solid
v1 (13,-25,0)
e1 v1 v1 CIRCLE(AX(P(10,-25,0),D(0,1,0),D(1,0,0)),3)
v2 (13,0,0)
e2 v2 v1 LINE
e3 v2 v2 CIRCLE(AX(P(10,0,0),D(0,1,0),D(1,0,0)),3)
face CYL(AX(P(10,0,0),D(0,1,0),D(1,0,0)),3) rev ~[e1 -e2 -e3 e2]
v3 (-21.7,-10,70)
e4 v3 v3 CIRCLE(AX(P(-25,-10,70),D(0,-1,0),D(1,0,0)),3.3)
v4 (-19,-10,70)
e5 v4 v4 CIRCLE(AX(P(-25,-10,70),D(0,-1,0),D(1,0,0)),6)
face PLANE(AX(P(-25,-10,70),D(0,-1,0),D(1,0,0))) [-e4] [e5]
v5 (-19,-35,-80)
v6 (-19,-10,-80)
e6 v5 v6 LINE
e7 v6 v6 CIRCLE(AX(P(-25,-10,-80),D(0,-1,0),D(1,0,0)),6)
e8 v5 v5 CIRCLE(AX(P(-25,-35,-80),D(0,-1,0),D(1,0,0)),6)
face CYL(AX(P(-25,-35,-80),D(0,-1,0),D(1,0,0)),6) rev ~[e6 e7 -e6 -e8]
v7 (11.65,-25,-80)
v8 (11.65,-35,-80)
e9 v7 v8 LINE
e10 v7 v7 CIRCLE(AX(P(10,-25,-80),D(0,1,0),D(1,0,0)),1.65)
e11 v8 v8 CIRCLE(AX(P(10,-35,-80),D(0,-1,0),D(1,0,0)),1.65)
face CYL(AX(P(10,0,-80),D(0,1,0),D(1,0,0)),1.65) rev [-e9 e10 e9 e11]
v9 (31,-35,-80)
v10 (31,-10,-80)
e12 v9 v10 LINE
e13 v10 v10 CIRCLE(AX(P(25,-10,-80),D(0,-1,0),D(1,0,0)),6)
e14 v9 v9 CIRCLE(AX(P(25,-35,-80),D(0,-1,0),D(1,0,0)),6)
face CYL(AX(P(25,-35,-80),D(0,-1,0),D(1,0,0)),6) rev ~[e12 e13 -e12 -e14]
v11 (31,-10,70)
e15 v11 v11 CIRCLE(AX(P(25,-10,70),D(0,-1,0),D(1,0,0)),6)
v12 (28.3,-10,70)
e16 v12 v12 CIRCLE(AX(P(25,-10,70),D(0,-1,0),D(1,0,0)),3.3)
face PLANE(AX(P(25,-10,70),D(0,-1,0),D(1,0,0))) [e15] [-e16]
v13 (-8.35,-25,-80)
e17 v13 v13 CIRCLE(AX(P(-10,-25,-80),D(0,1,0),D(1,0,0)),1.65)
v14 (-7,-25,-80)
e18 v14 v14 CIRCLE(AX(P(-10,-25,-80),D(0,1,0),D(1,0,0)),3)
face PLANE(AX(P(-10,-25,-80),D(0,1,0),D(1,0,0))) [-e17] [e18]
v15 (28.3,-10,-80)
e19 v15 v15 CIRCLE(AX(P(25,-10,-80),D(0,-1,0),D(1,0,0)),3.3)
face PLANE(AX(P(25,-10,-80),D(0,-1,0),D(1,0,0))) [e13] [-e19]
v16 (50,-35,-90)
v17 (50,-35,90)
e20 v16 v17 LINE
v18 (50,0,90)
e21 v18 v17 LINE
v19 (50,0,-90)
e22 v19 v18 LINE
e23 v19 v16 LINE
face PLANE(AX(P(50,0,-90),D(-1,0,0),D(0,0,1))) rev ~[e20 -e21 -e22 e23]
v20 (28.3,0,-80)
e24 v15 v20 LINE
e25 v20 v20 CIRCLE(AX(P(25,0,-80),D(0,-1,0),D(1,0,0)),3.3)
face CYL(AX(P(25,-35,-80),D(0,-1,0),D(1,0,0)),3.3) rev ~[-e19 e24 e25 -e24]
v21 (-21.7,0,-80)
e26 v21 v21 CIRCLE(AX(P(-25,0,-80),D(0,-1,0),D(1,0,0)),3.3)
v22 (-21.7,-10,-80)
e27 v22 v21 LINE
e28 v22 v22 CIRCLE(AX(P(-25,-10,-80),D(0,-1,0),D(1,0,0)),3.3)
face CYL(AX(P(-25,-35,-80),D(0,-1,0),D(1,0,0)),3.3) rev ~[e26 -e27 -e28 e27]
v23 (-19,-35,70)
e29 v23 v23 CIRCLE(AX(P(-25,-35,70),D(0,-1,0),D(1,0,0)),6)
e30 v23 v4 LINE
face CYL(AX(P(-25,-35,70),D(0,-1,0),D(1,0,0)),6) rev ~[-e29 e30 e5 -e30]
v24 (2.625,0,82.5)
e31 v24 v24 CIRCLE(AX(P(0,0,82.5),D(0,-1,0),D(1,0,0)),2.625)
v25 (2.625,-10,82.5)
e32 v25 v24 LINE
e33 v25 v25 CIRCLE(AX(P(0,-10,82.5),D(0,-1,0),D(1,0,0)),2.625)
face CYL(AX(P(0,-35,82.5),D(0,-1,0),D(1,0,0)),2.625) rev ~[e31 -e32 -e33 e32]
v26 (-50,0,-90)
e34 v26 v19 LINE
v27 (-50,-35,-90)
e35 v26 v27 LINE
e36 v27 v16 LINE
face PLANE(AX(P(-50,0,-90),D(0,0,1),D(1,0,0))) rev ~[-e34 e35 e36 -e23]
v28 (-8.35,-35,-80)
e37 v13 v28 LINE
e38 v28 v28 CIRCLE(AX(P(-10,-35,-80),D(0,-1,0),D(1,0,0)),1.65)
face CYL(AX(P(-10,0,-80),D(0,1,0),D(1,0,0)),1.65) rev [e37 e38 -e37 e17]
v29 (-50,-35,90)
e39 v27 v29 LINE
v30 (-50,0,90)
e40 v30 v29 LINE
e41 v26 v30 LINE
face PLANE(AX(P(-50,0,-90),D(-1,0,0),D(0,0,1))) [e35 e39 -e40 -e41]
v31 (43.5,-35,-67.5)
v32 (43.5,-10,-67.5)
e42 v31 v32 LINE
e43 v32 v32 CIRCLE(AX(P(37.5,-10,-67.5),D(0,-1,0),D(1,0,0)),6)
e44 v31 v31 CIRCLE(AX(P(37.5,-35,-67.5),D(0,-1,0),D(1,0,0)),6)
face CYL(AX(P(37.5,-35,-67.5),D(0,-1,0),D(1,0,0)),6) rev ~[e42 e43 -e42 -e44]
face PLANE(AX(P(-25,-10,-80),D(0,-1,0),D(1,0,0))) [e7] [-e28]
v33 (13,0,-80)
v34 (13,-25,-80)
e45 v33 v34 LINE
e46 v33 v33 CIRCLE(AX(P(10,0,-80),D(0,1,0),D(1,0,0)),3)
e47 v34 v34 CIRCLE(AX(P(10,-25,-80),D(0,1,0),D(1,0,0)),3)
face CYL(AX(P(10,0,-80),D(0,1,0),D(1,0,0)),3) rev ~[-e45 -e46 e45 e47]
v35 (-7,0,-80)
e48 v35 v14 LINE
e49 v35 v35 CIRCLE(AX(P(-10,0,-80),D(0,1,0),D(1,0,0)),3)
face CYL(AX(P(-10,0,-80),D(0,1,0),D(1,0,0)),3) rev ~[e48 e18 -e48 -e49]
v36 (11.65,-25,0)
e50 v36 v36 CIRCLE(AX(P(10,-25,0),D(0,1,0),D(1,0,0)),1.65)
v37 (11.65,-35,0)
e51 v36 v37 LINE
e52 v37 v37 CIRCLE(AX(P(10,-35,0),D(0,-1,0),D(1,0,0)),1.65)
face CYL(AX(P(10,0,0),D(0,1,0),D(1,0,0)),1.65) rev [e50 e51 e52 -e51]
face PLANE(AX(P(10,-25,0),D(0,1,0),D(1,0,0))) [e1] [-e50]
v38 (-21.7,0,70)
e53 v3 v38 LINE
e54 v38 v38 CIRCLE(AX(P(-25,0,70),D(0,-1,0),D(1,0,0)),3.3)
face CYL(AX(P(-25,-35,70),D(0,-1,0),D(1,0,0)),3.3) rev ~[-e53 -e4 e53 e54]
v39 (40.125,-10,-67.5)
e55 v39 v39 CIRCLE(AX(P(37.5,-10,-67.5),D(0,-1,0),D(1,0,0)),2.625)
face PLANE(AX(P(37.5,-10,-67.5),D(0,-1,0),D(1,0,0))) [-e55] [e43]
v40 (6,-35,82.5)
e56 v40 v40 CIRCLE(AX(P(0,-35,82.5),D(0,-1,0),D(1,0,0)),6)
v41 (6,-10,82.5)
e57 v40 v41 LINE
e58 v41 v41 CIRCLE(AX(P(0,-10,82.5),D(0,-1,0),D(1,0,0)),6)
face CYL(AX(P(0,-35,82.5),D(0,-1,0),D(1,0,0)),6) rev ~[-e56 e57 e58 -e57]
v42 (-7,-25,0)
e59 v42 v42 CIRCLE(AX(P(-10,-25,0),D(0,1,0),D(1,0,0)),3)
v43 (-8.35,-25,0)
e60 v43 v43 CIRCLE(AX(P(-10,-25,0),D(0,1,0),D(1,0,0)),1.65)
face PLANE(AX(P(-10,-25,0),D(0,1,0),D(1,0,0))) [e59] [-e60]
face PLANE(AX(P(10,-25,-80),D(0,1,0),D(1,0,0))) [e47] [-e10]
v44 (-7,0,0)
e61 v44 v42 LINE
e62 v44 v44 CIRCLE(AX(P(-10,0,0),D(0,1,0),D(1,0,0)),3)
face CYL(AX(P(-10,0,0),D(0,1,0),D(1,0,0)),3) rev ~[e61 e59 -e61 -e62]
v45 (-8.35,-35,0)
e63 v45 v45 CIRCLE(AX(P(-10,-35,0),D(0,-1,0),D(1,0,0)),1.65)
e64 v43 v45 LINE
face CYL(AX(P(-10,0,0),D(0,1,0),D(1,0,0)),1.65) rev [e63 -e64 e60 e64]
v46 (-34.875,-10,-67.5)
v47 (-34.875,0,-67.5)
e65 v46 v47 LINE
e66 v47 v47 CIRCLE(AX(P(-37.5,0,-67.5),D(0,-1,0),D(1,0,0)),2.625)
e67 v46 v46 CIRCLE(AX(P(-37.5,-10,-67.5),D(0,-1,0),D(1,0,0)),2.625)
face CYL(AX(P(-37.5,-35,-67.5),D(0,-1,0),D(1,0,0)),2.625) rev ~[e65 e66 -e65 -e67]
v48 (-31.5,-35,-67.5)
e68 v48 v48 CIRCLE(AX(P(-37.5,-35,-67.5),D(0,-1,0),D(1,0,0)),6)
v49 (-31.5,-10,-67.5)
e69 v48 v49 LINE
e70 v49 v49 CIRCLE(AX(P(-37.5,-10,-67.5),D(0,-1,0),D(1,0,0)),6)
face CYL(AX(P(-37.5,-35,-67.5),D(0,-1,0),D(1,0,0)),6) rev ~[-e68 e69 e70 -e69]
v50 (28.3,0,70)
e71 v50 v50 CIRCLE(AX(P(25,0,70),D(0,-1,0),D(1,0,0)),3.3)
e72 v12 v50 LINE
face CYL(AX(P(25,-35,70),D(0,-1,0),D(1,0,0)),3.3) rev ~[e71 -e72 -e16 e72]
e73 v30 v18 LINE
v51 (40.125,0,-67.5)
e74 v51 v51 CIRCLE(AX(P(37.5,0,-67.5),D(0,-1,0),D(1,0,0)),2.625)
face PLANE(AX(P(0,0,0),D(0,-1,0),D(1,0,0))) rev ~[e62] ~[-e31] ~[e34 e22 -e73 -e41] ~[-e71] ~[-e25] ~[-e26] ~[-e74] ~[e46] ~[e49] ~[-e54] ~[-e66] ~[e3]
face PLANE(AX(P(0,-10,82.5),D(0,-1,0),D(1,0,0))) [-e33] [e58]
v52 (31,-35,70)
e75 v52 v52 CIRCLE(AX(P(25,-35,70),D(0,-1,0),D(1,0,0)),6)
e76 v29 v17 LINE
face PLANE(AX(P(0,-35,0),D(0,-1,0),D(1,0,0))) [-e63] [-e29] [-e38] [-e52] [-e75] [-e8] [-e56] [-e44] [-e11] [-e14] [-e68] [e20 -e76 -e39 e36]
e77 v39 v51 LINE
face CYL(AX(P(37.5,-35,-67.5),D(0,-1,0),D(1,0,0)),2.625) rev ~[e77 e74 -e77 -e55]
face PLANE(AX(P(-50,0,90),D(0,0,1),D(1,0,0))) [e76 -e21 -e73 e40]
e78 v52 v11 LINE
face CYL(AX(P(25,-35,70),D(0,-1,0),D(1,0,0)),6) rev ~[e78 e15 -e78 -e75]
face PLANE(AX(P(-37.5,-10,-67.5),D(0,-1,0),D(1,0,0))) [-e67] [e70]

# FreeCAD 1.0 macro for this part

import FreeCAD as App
import Part
import Sketcher

doc = App.newDocument("Part")
body = doc.addObject("PartDesign::Body", "Body")

sketch1 = body.newObject("Sketcher::SketchObject", "Sketch")
sketch1.AttachmentSupport = (doc.getObject("XZ_Plane"), [""])
sketch1.MapMode = "FlatFace"
sketch1.addGeometry(Part.LineSegment(App.Vector(-50, 90, 0), App.Vector(-50, -90, 0)), False)
sketch1.addGeometry(Part.LineSegment(App.Vector(-50, -90, 0), App.Vector(50, -90, 0)), False)
sketch1.addGeometry(Part.LineSegment(App.Vector(50, -90, 0), App.Vector(50, 90, 0)), False)
sketch1.addGeometry(Part.LineSegment(App.Vector(50, 90, 0), App.Vector(-50, 90, 0)), False)
sketch1.addGeometry(Part.Circle(App.Vector(-10, -80, 0), App.Vector(0, 0, 1), 1.65), False)
sketch1.addGeometry(Part.Circle(App.Vector(10, -80, 0), App.Vector(0, 0, 1), 1.65), False)
sketch1.addGeometry(Part.Circle(App.Vector(-10, 0, 0), App.Vector(0, 0, 1), 1.65), False)
sketch1.addGeometry(Part.Circle(App.Vector(10, 0, 0), App.Vector(0, 0, 1), 1.65), False)
sketch1.addConstraint(Sketcher.Constraint("Coincident", 0, 2, 1, 1))
sketch1.addConstraint(Sketcher.Constraint("Coincident", 1, 2, 2, 1))
sketch1.addConstraint(Sketcher.Constraint("Coincident", 2, 2, 3, 1))
sketch1.addConstraint(Sketcher.Constraint("Coincident", 3, 2, 0, 1))
sketch1.addConstraint(Sketcher.Constraint("Vertical", 0))
sketch1.addConstraint(Sketcher.Constraint("Horizontal", 1))
sketch1.addConstraint(Sketcher.Constraint("Vertical", 2))
sketch1.addConstraint(Sketcher.Constraint("Horizontal", 3))
sketch1.addConstraint(Sketcher.Constraint("Equal", 4, 5))
sketch1.addConstraint(Sketcher.Constraint("Equal", 5, 6))
sketch1.addConstraint(Sketcher.Constraint("Equal", 6, 7))
sketch1.addConstraint(Sketcher.Constraint("Symmetric", 6, 3, 7, 3, -1, 1))
sketch1.addConstraint(Sketcher.Constraint("Symmetric", 0, 2, 2, 2, -1, 1))
sketch1.addConstraint(Sketcher.Constraint("Symmetric", 4, 3, 5, 3, -2))
sketch1.addConstraint(Sketcher.Constraint("PointOnObject", 6, 3, -1))
sketch1.addConstraint(Sketcher.Constraint("Vertical", 4, 3, 6, 3))
sketch1.addConstraint(Sketcher.Constraint("Diameter", 4, 3.3))
sketch1.addConstraint(Sketcher.Constraint("DistanceX", 1, 1, 1, 2, 100.0))
sketch1.addConstraint(Sketcher.Constraint("DistanceY", 0, 2, 0, 1, 180.0))
sketch1.addConstraint(Sketcher.Constraint("DistanceX", 4, 3, -1, 1, 10.0))
sketch1.addConstraint(Sketcher.Constraint("DistanceY", 4, 3, -1, 1, 80.0))
pad1 = body.newObject("PartDesign::Pad", "Pad")
pad1.Profile = sketch1
pad1.Length = 35

sketch2 = body.newObject("Sketcher::SketchObject", "Sketch001")
sketch2.AttachmentSupport = (doc.getObject("XZ_Plane"), [""])
sketch2.MapMode = "FlatFace"
sketch2.AttachmentOffset = App.Placement(App.Vector(0, 0, 35), App.Rotation())
sketch2.addGeometry(Part.Circle(App.Vector(25, -80, 0), App.Vector(0, 0, 1), 3.3), False)
sketch2.addGeometry(Part.Circle(App.Vector(-25, -80, 0), App.Vector(0, 0, 1), 3.3), False)
sketch2.addGeometry(Part.Circle(App.Vector(25, 70, 0), App.Vector(0, 0, 1), 3.3), False)
sketch2.addGeometry(Part.Circle(App.Vector(-25, 70, 0), App.Vector(0, 0, 1), 3.3), False)
sketch2.addGeometry(Part.Circle(App.Vector(0, 82.5, 0), App.Vector(0, 0, 1), 2.625), False)
sketch2.addGeometry(Part.Circle(App.Vector(-37.5, -67.5, 0), App.Vector(0, 0, 1), 2.625), False)
sketch2.addGeometry(Part.Circle(App.Vector(37.5, -67.5, 0), App.Vector(0, 0, 1), 2.625), False)
sketch2.addConstraint(Sketcher.Constraint("Equal", 0, 1))
sketch2.addConstraint(Sketcher.Constraint("Equal", 1, 2))
sketch2.addConstraint(Sketcher.Constraint("Equal", 2, 3))
sketch2.addConstraint(Sketcher.Constraint("Equal", 4, 5))
sketch2.addConstraint(Sketcher.Constraint("Equal", 5, 6))
sketch2.addConstraint(Sketcher.Constraint("Symmetric", 0, 3, 1, 3, -2))
sketch2.addConstraint(Sketcher.Constraint("Symmetric", 2, 3, 3, 3, -2))
sketch2.addConstraint(Sketcher.Constraint("Symmetric", 5, 3, 6, 3, -2))
sketch2.addConstraint(Sketcher.Constraint("PointOnObject", 4, 3, -2))
sketch2.addConstraint(Sketcher.Constraint("Vertical", 0, 3, 2, 3))
sketch2.addConstraint(Sketcher.Constraint("Diameter", 0, 6.6))
sketch2.addConstraint(Sketcher.Constraint("Diameter", 4, 5.25))
sketch2.addConstraint(Sketcher.Constraint("DistanceX", -1, 1, 0, 3, 25.0))
sketch2.addConstraint(Sketcher.Constraint("DistanceY", 0, 3, -1, 1, 80.0))
sketch2.addConstraint(Sketcher.Constraint("DistanceY", -1, 1, 2, 3, 70.0))
sketch2.addConstraint(Sketcher.Constraint("DistanceY", 5, 3, 4, 3, 150.0))
sketch2.addConstraint(Sketcher.Constraint("DistanceX", 5, 3, 6, 3, 75.0))
sketch2.addConstraint(Sketcher.Constraint("DistanceY", -1, 1, 4, 3, 82.5))
pocket1 = body.newObject("PartDesign::Pocket", "Pocket")
pocket1.Profile = sketch2
pocket1.Type = "ThroughAll"

sketch3 = body.newObject("Sketcher::SketchObject", "Sketch002")
sketch3.AttachmentSupport = (doc.getObject("XZ_Plane"), [""])
sketch3.MapMode = "FlatFace"
sketch3.AttachmentOffset = App.Placement(App.Vector(0, 0, 35), App.Rotation())
sketch3.addGeometry(Part.Circle(App.Vector(25, 70, 0), App.Vector(0, 0, 1), 6), False)
sketch3.addGeometry(Part.Circle(App.Vector(-25, 70, 0), App.Vector(0, 0, 1), 6), False)
sketch3.addGeometry(Part.Circle(App.Vector(25, -80, 0), App.Vector(0, 0, 1), 6), False)
sketch3.addGeometry(Part.Circle(App.Vector(-25, -80, 0), App.Vector(0, 0, 1), 6), False)
sketch3.addGeometry(Part.Circle(App.Vector(-37.5, -67.5, 0), App.Vector(0, 0, 1), 6), False)
sketch3.addGeometry(Part.Circle(App.Vector(37.5, -67.5, 0), App.Vector(0, 0, 1), 6), False)
sketch3.addGeometry(Part.Circle(App.Vector(0, 82.5, 0), App.Vector(0, 0, 1), 6), False)
sketch3.addConstraint(Sketcher.Constraint("Equal", 0, 1))
sketch3.addConstraint(Sketcher.Constraint("Equal", 1, 2))
sketch3.addConstraint(Sketcher.Constraint("Equal", 2, 3))
sketch3.addConstraint(Sketcher.Constraint("Equal", 3, 4))
sketch3.addConstraint(Sketcher.Constraint("Equal", 4, 5))
sketch3.addConstraint(Sketcher.Constraint("Equal", 5, 6))
sketch3.addConstraint(Sketcher.Constraint("Symmetric", 0, 3, 1, 3, -2))
sketch3.addConstraint(Sketcher.Constraint("Symmetric", 2, 3, 3, 3, -2))
sketch3.addConstraint(Sketcher.Constraint("Symmetric", 4, 3, 5, 3, -2))
sketch3.addConstraint(Sketcher.Constraint("PointOnObject", 6, 3, -2))
sketch3.addConstraint(Sketcher.Constraint("Vertical", 0, 3, 2, 3))
sketch3.addConstraint(Sketcher.Constraint("Diameter", 0, 12.0))
sketch3.addConstraint(Sketcher.Constraint("DistanceX", -1, 1, 0, 3, 25.0))
sketch3.addConstraint(Sketcher.Constraint("DistanceY", -1, 1, 0, 3, 70.0))
sketch3.addConstraint(Sketcher.Constraint("DistanceY", 2, 3, -1, 1, 80.0))
sketch3.addConstraint(Sketcher.Constraint("DistanceX", 4, 3, 5, 3, 75.0))
sketch3.addConstraint(Sketcher.Constraint("DistanceY", 4, 3, 6, 3, 150.0))
sketch3.addConstraint(Sketcher.Constraint("DistanceY", 4, 3, -1, 1, 67.5))
pocket2 = body.newObject("PartDesign::Pocket", "Pocket001")
pocket2.Profile = sketch3
pocket2.Length = 25

sketch4 = body.newObject("Sketcher::SketchObject", "Sketch003")
sketch4.AttachmentSupport = (doc.getObject("XZ_Plane"), [""])
sketch4.MapMode = "FlatFace"
sketch4.addGeometry(Part.Circle(App.Vector(-10, -80, 0), App.Vector(0, 0, 1), 3), False)
sketch4.addGeometry(Part.Circle(App.Vector(10, -80, 0), App.Vector(0, 0, 1), 3), False)
sketch4.addGeometry(Part.Circle(App.Vector(-10, 0, 0), App.Vector(0, 0, 1), 3), False)
sketch4.addGeometry(Part.Circle(App.Vector(10, 0, 0), App.Vector(0, 0, 1), 3), False)
sketch4.addConstraint(Sketcher.Constraint("Equal", 0, 1))
sketch4.addConstraint(Sketcher.Constraint("Equal", 1, 2))
sketch4.addConstraint(Sketcher.Constraint("Equal", 2, 3))
sketch4.addConstraint(Sketcher.Constraint("Symmetric", 2, 3, 3, 3, -1, 1))
sketch4.addConstraint(Sketcher.Constraint("Symmetric", 0, 3, 1, 3, -2))
sketch4.addConstraint(Sketcher.Constraint("PointOnObject", 2, 3, -1))
sketch4.addConstraint(Sketcher.Constraint("Vertical", 0, 3, 2, 3))
sketch4.addConstraint(Sketcher.Constraint("Diameter", 0, 6.0))
sketch4.addConstraint(Sketcher.Constraint("DistanceX", 0, 3, -1, 1, 10.0))
sketch4.addConstraint(Sketcher.Constraint("DistanceY", 0, 3, -1, 1, 80.0))
pocket3 = body.newObject("PartDesign::Pocket", "Pocket002")
pocket3.Profile = sketch4
pocket3.Length = 25
pocket3.Reversed = True

doc.recompute()
